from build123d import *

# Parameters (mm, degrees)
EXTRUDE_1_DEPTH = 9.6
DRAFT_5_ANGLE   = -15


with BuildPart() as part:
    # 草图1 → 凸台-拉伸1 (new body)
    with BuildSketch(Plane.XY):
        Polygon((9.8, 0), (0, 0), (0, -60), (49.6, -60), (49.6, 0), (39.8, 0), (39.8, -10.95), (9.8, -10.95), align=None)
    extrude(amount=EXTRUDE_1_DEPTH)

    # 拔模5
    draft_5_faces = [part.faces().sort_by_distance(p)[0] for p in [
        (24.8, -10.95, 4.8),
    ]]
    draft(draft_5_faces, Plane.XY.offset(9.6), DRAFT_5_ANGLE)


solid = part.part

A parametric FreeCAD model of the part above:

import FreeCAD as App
import Part
import Sketcher

V = App.Vector
Q = App.Units.Quantity


def faces_at(feature, points):
    """Names of the faces that lie closest to the given points."""
    faces = feature.Shape.Faces
    near = lambda p: min(range(len(faces)), key=lambda i: faces[i].distToShape(Part.Vertex(*p))[0])
    return sorted({f"Face{near(p) + 1}" for p in points})

doc = App.newDocument("Part")
params = doc.addObject("Spreadsheet::Sheet", "Params")
for row, (alias, value) in enumerate([
    ("sketch1_width", "30 mm"),
    ("sketch1_height", "60 mm"),
    ("sketch1_width2", "9.8 mm"),
    ("sketch1_height2", "10.95 mm"),
    ("pad1_length", "9.6 mm"),
    ("draft_angle", "15 deg"),
], start=1):
    params.set(f"A{row}", alias)
    params.set(f"B{row}", "=" + value)
    params.setAlias(f"B{row}", alias)

body = doc.addObject("PartDesign::Body", "Body")

# Sketch on XY plane
sketch1 = body.newObject("Sketcher::SketchObject", "Sketch")
sketch1.AttachmentSupport = (doc.getObject("XY_Plane"), [""])
sketch1.MapMode = "FlatFace"
sketch1.addGeometry([
    Part.LineSegment(V(9.8, 0, 0), V(0, 0, 0)),  # 0
    Part.LineSegment(V(0, 0, 0), V(0, -60, 0)),  # 1
    Part.LineSegment(V(0, -60, 0), V(49.6, -60, 0)),  # 2
    Part.LineSegment(V(49.6, -60, 0), V(49.6, 0, 0)),  # 3
    Part.LineSegment(V(49.6, 0, 0), V(39.8, 0, 0)),  # 4
    Part.LineSegment(V(39.8, 0, 0), V(39.8, -10.95, 0)),  # 5
    Part.LineSegment(V(39.8, -10.95, 0), V(9.8, -10.95, 0)),  # 6
    Part.LineSegment(V(9.8, -10.95, 0), V(9.8, 0, 0)),  # 7
], False)
sketch1.addConstraint([
    Sketcher.Constraint("Coincident", 0, 2, 1, 1),
    Sketcher.Constraint("Coincident", 1, 2, 2, 1),
    Sketcher.Constraint("Coincident", 2, 2, 3, 1),
    Sketcher.Constraint("Coincident", 3, 2, 4, 1),
    Sketcher.Constraint("Coincident", 4, 2, 5, 1),
    Sketcher.Constraint("Coincident", 5, 2, 6, 1),
    Sketcher.Constraint("Coincident", 6, 2, 7, 1),
    Sketcher.Constraint("Coincident", 7, 2, 0, 1),
    Sketcher.Constraint("Horizontal", 0),
    Sketcher.Constraint("Vertical", 1),
    Sketcher.Constraint("Horizontal", 2),
    Sketcher.Constraint("Vertical", 3),
    Sketcher.Constraint("Horizontal", 4),
    Sketcher.Constraint("Vertical", 5),
    Sketcher.Constraint("Horizontal", 6),
    Sketcher.Constraint("Vertical", 7),
    Sketcher.Constraint("Coincident", 0, 2, -1, 1),
    Sketcher.Constraint("PointOnObject", 3, 2, -1),
    Sketcher.Constraint("Equal", 0, 4),
    Sketcher.Constraint("DistanceX", 6, 2, 6, 1, Q("30 mm")),
    Sketcher.Constraint("DistanceY", 1, 2, 1, 1, Q("60 mm")),
    Sketcher.Constraint("DistanceX", 0, 2, 0, 1, Q("9.8 mm")),
    Sketcher.Constraint("DistanceY", 5, 2, 5, 1, Q("10.95 mm")),
])
sketch1.setExpression("Constraints[19]", "Params.sketch1_width")
sketch1.setExpression("Constraints[20]", "Params.sketch1_height")
sketch1.setExpression("Constraints[21]", "Params.sketch1_width2")
sketch1.setExpression("Constraints[22]", "Params.sketch1_height2")
pad1 = body.newObject("PartDesign::Pad", "Pad")
pad1.Profile = sketch1
pad1.setExpression("Length", "Params.pad1_length")
doc.recompute()

datumplane = body.newObject("PartDesign::Plane", "DatumPlane")
datumplane.AttachmentSupport = (doc.getObject("XY_Plane"), [""])
datumplane.MapMode = "FlatFace"
datumplane.AttachmentOffset = App.Placement(V(0, 0, 9.6), App.Rotation())
draft = body.newObject("PartDesign::Draft", "Draft")
draft.Base = (pad1, faces_at(pad1, [(24.8, -10.95, 4.8)]))
draft.NeutralPlane = (datumplane, [""])
draft.setExpression("Angle", "Params.draft_angle")
draft.Reversed = True

doc.recompute()
